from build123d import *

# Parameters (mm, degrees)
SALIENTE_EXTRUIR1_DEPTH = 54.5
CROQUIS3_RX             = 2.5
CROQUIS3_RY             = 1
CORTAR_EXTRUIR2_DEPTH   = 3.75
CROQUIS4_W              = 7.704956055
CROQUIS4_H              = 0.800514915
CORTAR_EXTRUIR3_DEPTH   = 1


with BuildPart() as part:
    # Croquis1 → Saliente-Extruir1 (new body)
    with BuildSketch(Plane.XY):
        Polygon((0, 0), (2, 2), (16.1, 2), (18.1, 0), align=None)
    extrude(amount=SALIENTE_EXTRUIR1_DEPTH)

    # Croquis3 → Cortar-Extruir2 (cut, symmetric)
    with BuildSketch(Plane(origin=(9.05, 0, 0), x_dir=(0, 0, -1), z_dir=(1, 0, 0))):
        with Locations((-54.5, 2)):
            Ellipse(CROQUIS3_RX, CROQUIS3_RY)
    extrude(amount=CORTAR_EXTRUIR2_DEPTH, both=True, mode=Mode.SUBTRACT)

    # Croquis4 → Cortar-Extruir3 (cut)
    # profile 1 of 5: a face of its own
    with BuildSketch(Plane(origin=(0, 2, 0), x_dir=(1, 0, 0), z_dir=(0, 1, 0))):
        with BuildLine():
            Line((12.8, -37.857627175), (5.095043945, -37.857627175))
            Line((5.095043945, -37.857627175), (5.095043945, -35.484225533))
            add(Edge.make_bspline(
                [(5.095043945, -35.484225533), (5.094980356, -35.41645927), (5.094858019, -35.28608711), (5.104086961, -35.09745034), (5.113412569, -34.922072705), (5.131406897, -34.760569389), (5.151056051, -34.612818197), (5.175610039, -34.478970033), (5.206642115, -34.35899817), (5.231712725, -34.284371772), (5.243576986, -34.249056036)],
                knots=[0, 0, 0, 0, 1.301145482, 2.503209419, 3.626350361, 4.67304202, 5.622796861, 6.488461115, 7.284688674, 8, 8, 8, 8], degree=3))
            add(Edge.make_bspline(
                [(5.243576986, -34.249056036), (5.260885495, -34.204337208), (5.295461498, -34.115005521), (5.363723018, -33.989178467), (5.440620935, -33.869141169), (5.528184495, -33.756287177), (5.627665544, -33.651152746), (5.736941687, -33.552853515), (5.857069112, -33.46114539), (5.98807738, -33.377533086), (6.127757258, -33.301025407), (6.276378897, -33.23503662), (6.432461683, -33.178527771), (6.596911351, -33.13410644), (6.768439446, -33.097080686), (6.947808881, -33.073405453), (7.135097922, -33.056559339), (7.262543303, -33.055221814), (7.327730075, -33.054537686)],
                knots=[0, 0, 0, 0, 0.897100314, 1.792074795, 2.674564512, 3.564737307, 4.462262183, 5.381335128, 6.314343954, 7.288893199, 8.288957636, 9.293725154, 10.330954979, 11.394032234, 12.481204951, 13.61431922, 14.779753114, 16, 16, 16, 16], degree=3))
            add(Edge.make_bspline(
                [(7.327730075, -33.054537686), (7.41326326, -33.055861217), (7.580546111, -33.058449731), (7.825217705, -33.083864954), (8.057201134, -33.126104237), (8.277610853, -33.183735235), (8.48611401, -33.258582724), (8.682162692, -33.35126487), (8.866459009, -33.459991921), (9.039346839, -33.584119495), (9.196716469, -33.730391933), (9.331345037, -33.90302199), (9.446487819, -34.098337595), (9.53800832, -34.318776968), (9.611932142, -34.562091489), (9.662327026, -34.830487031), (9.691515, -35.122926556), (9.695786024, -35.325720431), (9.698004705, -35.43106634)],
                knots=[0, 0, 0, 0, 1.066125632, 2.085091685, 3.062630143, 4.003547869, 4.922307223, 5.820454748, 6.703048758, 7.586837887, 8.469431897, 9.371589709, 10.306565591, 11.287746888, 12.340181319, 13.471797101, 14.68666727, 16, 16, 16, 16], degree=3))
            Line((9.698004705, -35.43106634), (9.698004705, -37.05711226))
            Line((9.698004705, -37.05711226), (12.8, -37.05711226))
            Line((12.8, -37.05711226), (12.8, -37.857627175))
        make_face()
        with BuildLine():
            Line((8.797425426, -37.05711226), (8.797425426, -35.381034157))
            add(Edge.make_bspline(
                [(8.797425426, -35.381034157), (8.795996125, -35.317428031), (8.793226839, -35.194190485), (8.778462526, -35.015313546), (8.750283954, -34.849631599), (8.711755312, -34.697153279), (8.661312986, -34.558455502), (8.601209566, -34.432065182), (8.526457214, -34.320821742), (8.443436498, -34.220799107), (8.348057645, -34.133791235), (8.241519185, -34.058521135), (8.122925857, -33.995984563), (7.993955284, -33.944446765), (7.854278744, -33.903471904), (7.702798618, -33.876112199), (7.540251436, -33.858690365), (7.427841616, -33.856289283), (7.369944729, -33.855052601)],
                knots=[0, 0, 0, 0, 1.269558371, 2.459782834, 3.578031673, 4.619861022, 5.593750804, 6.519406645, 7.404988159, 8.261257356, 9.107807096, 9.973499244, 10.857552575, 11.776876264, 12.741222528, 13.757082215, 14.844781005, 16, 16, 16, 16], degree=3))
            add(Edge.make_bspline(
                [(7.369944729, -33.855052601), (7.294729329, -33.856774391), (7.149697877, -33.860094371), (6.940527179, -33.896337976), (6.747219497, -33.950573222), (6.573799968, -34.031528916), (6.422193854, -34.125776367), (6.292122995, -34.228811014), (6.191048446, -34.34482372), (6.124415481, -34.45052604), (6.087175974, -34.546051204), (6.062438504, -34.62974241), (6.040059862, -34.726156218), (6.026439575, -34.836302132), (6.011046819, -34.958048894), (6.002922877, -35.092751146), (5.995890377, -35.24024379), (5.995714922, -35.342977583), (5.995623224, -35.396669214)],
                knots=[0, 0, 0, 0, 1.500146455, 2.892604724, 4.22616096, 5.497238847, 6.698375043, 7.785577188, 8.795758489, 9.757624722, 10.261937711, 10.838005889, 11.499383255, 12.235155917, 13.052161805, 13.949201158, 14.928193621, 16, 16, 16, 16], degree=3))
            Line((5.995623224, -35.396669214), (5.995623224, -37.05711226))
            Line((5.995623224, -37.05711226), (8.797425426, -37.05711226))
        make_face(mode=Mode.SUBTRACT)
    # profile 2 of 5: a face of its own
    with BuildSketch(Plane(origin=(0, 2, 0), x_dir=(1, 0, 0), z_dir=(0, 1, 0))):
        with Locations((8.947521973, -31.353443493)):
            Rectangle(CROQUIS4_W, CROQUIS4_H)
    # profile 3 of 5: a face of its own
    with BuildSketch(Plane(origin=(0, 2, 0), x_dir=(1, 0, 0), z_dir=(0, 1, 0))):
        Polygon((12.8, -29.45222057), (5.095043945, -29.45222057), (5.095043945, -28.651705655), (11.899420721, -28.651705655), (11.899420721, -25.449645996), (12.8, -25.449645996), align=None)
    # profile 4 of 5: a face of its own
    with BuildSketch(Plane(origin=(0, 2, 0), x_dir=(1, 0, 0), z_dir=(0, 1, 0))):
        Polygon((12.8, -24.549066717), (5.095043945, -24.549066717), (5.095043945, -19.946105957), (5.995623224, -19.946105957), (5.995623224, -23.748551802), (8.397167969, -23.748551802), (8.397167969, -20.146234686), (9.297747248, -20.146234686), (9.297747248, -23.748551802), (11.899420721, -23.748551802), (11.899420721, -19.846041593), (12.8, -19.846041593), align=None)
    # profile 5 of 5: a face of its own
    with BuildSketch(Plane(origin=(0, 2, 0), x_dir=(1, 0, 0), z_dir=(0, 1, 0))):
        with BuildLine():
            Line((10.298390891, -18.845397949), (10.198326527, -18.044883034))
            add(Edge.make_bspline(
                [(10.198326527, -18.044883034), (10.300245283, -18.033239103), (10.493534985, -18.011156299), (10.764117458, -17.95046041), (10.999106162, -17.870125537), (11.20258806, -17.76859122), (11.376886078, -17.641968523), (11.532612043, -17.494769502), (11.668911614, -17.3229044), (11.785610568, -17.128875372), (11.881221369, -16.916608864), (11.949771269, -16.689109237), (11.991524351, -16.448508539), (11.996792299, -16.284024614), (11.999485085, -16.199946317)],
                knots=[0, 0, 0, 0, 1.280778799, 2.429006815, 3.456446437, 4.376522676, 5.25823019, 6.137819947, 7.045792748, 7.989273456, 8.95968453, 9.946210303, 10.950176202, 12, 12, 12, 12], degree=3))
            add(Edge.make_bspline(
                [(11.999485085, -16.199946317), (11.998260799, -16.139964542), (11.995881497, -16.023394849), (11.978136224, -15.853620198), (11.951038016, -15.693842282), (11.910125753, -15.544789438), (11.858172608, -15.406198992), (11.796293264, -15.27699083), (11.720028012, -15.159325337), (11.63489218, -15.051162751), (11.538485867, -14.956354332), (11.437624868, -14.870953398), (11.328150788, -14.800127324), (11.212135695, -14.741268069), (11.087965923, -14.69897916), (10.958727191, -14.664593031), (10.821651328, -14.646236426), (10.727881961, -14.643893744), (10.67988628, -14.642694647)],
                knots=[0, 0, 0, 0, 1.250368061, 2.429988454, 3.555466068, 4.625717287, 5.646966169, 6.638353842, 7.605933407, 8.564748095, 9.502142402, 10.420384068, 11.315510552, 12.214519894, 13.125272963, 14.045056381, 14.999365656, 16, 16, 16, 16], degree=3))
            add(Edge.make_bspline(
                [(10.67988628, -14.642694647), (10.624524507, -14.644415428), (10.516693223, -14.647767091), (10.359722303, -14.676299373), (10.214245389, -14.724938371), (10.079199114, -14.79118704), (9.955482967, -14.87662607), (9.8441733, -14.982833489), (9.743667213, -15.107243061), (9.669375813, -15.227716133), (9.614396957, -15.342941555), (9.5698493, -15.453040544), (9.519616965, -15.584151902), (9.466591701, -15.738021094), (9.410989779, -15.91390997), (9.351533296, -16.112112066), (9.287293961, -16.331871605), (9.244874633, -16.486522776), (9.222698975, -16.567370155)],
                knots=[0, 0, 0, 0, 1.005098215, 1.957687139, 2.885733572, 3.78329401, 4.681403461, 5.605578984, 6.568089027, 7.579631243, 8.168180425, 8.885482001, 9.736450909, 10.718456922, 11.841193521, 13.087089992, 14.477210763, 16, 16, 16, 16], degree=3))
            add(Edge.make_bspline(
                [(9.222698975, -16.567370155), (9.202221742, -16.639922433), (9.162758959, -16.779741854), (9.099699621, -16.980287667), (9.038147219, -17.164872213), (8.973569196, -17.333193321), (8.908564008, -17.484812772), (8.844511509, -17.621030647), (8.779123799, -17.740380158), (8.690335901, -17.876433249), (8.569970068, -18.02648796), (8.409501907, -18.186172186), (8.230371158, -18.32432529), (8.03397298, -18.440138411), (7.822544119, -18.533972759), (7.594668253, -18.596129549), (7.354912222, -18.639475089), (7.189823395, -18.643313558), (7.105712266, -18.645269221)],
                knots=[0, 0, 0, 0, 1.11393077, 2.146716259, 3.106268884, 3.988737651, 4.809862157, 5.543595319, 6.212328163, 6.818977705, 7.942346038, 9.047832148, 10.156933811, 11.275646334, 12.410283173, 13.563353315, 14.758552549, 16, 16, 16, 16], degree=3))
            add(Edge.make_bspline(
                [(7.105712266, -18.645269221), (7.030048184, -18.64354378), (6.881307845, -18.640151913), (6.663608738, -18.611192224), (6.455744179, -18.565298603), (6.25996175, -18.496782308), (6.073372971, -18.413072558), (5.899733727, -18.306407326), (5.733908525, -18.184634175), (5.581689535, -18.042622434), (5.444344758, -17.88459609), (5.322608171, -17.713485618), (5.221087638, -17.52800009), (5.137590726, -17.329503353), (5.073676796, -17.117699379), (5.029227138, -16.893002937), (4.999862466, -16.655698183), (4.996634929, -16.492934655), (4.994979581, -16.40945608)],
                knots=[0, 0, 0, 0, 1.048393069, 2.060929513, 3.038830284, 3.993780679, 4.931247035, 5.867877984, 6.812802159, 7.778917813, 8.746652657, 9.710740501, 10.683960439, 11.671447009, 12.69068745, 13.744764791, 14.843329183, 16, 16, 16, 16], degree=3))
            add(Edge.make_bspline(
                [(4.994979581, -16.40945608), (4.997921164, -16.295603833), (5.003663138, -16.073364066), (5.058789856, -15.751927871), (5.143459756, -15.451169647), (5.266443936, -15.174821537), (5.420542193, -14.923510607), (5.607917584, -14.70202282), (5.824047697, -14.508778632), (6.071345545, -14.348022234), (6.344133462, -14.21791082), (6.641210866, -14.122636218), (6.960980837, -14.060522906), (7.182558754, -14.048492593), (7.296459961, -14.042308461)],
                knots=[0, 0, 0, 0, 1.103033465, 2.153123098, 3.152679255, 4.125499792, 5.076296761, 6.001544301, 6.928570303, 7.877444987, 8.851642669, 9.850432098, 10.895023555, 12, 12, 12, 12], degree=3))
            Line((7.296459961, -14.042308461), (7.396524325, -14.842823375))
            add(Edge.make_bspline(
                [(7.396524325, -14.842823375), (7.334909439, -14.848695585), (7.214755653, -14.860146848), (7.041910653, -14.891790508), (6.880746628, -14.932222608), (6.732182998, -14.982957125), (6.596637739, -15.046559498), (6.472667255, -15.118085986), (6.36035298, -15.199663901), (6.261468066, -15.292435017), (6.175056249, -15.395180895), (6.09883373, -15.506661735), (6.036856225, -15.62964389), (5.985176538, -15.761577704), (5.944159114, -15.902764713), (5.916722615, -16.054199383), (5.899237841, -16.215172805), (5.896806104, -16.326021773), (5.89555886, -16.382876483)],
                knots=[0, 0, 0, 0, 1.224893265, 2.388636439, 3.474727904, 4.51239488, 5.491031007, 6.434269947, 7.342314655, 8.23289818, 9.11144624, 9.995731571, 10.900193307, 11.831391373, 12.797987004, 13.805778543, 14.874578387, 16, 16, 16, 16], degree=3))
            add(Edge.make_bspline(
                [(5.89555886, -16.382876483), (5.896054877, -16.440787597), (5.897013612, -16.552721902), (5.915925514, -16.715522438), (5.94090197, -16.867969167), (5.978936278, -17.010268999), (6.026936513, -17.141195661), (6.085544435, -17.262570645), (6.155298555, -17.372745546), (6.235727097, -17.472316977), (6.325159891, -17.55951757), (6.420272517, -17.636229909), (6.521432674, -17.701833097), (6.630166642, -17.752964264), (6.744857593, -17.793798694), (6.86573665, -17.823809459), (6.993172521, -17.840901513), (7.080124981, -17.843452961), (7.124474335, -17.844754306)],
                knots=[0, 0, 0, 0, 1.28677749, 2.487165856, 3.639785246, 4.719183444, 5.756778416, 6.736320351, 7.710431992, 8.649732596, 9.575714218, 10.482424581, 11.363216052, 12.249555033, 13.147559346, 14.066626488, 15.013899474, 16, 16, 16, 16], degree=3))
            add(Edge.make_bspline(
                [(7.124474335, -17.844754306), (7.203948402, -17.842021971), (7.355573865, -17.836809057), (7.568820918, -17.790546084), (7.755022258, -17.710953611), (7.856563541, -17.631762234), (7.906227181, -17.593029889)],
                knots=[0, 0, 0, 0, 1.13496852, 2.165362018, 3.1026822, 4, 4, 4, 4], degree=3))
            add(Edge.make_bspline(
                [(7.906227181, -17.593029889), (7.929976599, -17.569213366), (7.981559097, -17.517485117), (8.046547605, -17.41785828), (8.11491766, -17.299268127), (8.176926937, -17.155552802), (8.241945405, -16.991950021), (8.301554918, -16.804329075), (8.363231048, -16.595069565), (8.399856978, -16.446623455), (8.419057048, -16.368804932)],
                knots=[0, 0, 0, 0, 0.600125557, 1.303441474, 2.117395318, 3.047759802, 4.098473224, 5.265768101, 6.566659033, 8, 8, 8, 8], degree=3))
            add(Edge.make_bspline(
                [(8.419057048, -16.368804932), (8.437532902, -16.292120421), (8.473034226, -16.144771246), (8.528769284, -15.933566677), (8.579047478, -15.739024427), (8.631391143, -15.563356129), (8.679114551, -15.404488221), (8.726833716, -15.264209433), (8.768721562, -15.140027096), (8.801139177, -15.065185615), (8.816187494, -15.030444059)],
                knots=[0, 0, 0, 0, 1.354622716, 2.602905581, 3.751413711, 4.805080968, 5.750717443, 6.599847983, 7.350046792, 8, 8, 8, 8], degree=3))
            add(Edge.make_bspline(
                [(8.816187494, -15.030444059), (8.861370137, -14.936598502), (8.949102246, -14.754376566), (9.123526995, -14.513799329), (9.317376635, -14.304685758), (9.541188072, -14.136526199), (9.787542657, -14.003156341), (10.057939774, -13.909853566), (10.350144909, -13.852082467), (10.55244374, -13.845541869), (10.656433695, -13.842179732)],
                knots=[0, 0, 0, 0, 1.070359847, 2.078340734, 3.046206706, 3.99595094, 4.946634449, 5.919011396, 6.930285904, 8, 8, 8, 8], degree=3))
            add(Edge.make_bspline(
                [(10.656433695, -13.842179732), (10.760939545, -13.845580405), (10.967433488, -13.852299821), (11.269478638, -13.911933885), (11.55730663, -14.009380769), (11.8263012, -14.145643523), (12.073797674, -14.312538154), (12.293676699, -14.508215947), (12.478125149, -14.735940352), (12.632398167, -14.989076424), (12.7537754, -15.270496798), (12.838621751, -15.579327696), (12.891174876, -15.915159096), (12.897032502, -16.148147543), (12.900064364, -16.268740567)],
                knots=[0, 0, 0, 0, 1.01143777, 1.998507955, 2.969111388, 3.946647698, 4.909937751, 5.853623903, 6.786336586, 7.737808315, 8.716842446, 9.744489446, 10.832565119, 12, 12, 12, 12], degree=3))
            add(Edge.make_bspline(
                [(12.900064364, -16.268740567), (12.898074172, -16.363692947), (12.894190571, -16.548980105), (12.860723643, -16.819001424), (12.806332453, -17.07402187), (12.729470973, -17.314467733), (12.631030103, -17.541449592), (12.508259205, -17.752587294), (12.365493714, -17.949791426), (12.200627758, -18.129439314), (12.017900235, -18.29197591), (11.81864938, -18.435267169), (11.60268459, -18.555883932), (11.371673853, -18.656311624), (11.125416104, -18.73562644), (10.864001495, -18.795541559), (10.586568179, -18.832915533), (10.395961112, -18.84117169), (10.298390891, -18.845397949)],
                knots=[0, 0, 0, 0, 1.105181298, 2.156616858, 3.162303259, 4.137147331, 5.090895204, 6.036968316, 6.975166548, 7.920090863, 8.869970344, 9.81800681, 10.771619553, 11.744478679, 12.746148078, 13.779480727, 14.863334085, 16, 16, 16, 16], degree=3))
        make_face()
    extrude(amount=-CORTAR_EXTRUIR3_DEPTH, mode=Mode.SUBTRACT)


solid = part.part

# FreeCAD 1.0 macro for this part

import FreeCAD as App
import Part
import Sketcher
from FreeCAD import Vector
Q = App.Units.Quantity

doc = App.newDocument("Part")
body = doc.addObject("PartDesign::Body", "Body")

# Sketch on XY plane
sketch1 = doc.addObject("Sketcher::SketchObject", "Sketch")
body.addObject(sketch1)
sketch1.AttachmentSupport = (doc.XY_Plane, [""])
sketch1.MapMode = "FlatFace"
sketch1.addGeometry([
    Part.LineSegment(Vector(2, 2, 0), Vector(0, 0, 0)),
    Part.LineSegment(Vector(0, 0, 0), Vector(18.1, 0, 0)),
    Part.LineSegment(Vector(18.1, 0, 0), Vector(16.1, 2, 0)),
    Part.LineSegment(Vector(16.1, 2, 0), Vector(2, 2, 0)),
], False)
sketch1.addConstraint([
    Sketcher.Constraint("Coincident", 0, 2, 1, 1),
    Sketcher.Constraint("Coincident", 1, 2, 2, 1),
    Sketcher.Constraint("Coincident", 2, 2, 3, 1),
    Sketcher.Constraint("Coincident", 3, 2, 0, 1),
    Sketcher.Constraint("Horizontal", 1),
    Sketcher.Constraint("Horizontal", 3),
    Sketcher.Constraint("Coincident", 0, 2, -1, 1),
    Sketcher.Constraint("Perpendicular", 0, 2),
    Sketcher.Constraint("Equal", 0, 2),
    Sketcher.Constraint("DistanceX", 1, 1, 1, 2, Q("18.1 mm")),
    Sketcher.Constraint("DistanceX", 3, 2, 3, 1, Q("14.1 mm")),
])
pad1 = doc.addObject("PartDesign::Pad", "Pad")
body.addObject(pad1)
pad1.Profile = sketch1
pad1.Length = 54.5

# Sketch on YZ plane
sketch2 = doc.addObject("Sketcher::SketchObject", "Sketch001")
body.addObject(sketch2)
sketch2.AttachmentSupport = (doc.YZ_Plane, [""])
sketch2.MapMode = "FlatFace"
sketch2.AttachmentOffset = App.Placement(Vector(0, 0, 9.05), App.Rotation())
sketch2.addGeometry(Part.Ellipse(Vector(2, 52, 0), Vector(3, 54.5, 0), Vector(2, 54.5, 0)), False)
sketch2.addConstraint(Sketcher.Constraint("Block", 0))
pocket1 = doc.addObject("PartDesign::Pocket", "Pocket")
body.addObject(pocket1)
pocket1.Profile = sketch2
pocket1.Length = 7.5
pocket1.Midplane = True

# Sketch on XZ plane
sketch3 = doc.addObject("Sketcher::SketchObject", "Sketch002")
body.addObject(sketch3)
sketch3.AttachmentSupport = (doc.XZ_Plane, [""])
sketch3.MapMode = "FlatFace"
sketch3.AttachmentOffset = App.Placement(Vector(0, 0, -2), App.Rotation())
sketch3.addGeometry([
    Part.LineSegment(Vector(5.095044, 37.857627, 0), Vector(12.8, 37.857627, 0)),  # 0
    Part.LineSegment(Vector(12.8, 37.857627, 0), Vector(12.8, 37.057112, 0)),  # 1
    Part.LineSegment(Vector(12.8, 37.057112, 0), Vector(9.698005, 37.057112, 0)),  # 2
    Part.LineSegment(Vector(9.698005, 37.057112, 0), Vector(9.698005, 35.431066, 0)),  # 3
    Part.BSplineCurve([Vector(7.32773, 33.054538, 0), Vector(7.413263, 33.055861, 0), Vector(7.580546, 33.05845, 0), Vector(7.825218, 33.083865, 0), Vector(8.057201, 33.126104, 0), Vector(8.277611, 33.183735, 0), Vector(8.486114, 33.258583, 0), Vector(8.682163, 33.351265, 0), Vector(8.866459, 33.459992, 0), Vector(9.039347, 33.584119, 0), Vector(9.196716, 33.730392, 0), Vector(9.331345, 33.903022, 0), Vector(9.446488, 34.098338, 0), Vector(9.538008, 34.318777, 0), Vector(9.611932, 34.562091, 0), Vector(9.662327, 34.830487, 0), Vector(9.691515, 35.122927, 0), Vector(9.695786, 35.32572, 0), Vector(9.698005, 35.431066, 0)], [4, 1, 1, 1, 1, 1, 1, 1, 1, 1, 1, 1, 1, 1, 1, 1, 4], [0, 1.066125632, 2.085091685, 3.062630143, 4.003547869, 4.922307223, 5.820454748, 6.703048758, 7.586837887, 8.469431897, 9.371589709, 10.306565591, 11.287746888, 12.340181319, 13.471797101, 14.68666727, 16], False, 3, [1, 1, 1, 1, 1, 1, 1, 1, 1, 1, 1, 1, 1, 1, 1, 1, 1, 1, 1], False),  # 4
    Part.BSplineCurve([Vector(5.243577, 34.249056, 0), Vector(5.260885, 34.204337, 0), Vector(5.295461, 34.115006, 0), Vector(5.363723, 33.989178, 0), Vector(5.440621, 33.869141, 0), Vector(5.528184, 33.756287, 0), Vector(5.627666, 33.651153, 0), Vector(5.736942, 33.552854, 0), Vector(5.857069, 33.461145, 0), Vector(5.988077, 33.377533, 0), Vector(6.127757, 33.301025, 0), Vector(6.276379, 33.235037, 0), Vector(6.432462, 33.178528, 0), Vector(6.596911, 33.134106, 0), Vector(6.768439, 33.097081, 0), Vector(6.947809, 33.073405, 0), Vector(7.135098, 33.056559, 0), Vector(7.262543, 33.055222, 0), Vector(7.32773, 33.054538, 0)], [4, 1, 1, 1, 1, 1, 1, 1, 1, 1, 1, 1, 1, 1, 1, 1, 4], [0, 0.897100314, 1.792074795, 2.674564512, 3.564737307, 4.462262183, 5.381335128, 6.314343954, 7.288893199, 8.288957636, 9.293725154, 10.330954979, 11.394032234, 12.481204951, 13.61431922, 14.779753114, 16], False, 3, [1, 1, 1, 1, 1, 1, 1, 1, 1, 1, 1, 1, 1, 1, 1, 1, 1, 1, 1], False),  # 5
    Part.BSplineCurve([Vector(5.095044, 35.484226, 0), Vector(5.09498, 35.416459, 0), Vector(5.094858, 35.286087, 0), Vector(5.104087, 35.09745, 0), Vector(5.113413, 34.922073, 0), Vector(5.131407, 34.760569, 0), Vector(5.151056, 34.612818, 0), Vector(5.17561, 34.47897, 0), Vector(5.206642, 34.358998, 0), Vector(5.231713, 34.284372, 0), Vector(5.243577, 34.249056, 0)], [4, 1, 1, 1, 1, 1, 1, 1, 4], [0, 1.301145482, 2.503209419, 3.626350361, 4.67304202, 5.622796861, 6.488461115, 7.284688674, 8], False, 3, [1, 1, 1, 1, 1, 1, 1, 1, 1, 1, 1], False),  # 6
    Part.LineSegment(Vector(5.095044, 35.484226, 0), Vector(5.095044, 37.857627, 0)),  # 7
    Part.LineSegment(Vector(8.797425, 37.057112, 0), Vector(5.995623, 37.057112, 0)),  # 8
    Part.LineSegment(Vector(5.995623, 37.057112, 0), Vector(5.995623, 35.396669, 0)),  # 9
    Part.BSplineCurve([Vector(7.369945, 33.855053, 0), Vector(7.294729, 33.856774, 0), Vector(7.149698, 33.860094, 0), Vector(6.940527, 33.896338, 0), Vector(6.747219, 33.950573, 0), Vector(6.5738, 34.031529, 0), Vector(6.422194, 34.125776, 0), Vector(6.292123, 34.228811, 0), Vector(6.191048, 34.344824, 0), Vector(6.124415, 34.450526, 0), Vector(6.087176, 34.546051, 0), Vector(6.062439, 34.629742, 0), Vector(6.04006, 34.726156, 0), Vector(6.02644, 34.836302, 0), Vector(6.011047, 34.958049, 0), Vector(6.002923, 35.092751, 0), Vector(5.99589, 35.240244, 0), Vector(5.995715, 35.342978, 0), Vector(5.995623, 35.396669, 0)], [4, 1, 1, 1, 1, 1, 1, 1, 1, 1, 1, 1, 1, 1, 1, 1, 4], [0, 1.500146455, 2.892604724, 4.22616096, 5.497238847, 6.698375043, 7.785577188, 8.795758489, 9.757624722, 10.261937711, 10.838005889, 11.499383255, 12.235155917, 13.052161805, 13.949201158, 14.928193621, 16], False, 3, [1, 1, 1, 1, 1, 1, 1, 1, 1, 1, 1, 1, 1, 1, 1, 1, 1, 1, 1], False),  # 10
    Part.BSplineCurve([Vector(8.797425, 35.381034, 0), Vector(8.795996, 35.317428, 0), Vector(8.793227, 35.19419, 0), Vector(8.778463, 35.015314, 0), Vector(8.750284, 34.849632, 0), Vector(8.711755, 34.697153, 0), Vector(8.661313, 34.558456, 0), Vector(8.60121, 34.432065, 0), Vector(8.526457, 34.320822, 0), Vector(8.443436, 34.220799, 0), Vector(8.348058, 34.133791, 0), Vector(8.241519, 34.058521, 0), Vector(8.122926, 33.995985, 0), Vector(7.993955, 33.944447, 0), Vector(7.854279, 33.903472, 0), Vector(7.702799, 33.876112, 0), Vector(7.540251, 33.85869, 0), Vector(7.427842, 33.856289, 0), Vector(7.369945, 33.855053, 0)], [4, 1, 1, 1, 1, 1, 1, 1, 1, 1, 1, 1, 1, 1, 1, 1, 4], [0, 1.269558371, 2.459782834, 3.578031673, 4.619861022, 5.593750804, 6.519406645, 7.404988159, 8.261257356, 9.107807096, 9.973499244, 10.857552575, 11.776876264, 12.741222528, 13.757082215, 14.844781005, 16], False, 3, [1, 1, 1, 1, 1, 1, 1, 1, 1, 1, 1, 1, 1, 1, 1, 1, 1, 1, 1], False),  # 11
    Part.LineSegment(Vector(8.797425, 35.381034, 0), Vector(8.797425, 37.057112, 0)),  # 12
    Part.LineSegment(Vector(5.095044, 30.953186, 0), Vector(5.095044, 31.753701, 0)),  # 13
    Part.LineSegment(Vector(5.095044, 31.753701, 0), Vector(12.8, 31.753701, 0)),  # 14
    Part.LineSegment(Vector(12.8, 31.753701, 0), Vector(12.8, 30.953186, 0)),  # 15
    Part.LineSegment(Vector(12.8, 30.953186, 0), Vector(5.095044, 30.953186, 0)),  # 16
    Part.LineSegment(Vector(5.095044, 29.452221, 0), Vector(12.8, 29.452221, 0)),  # 17
    Part.LineSegment(Vector(12.8, 29.452221, 0), Vector(12.8, 25.449646, 0)),  # 18
    Part.LineSegment(Vector(12.8, 25.449646, 0), Vector(11.899421, 25.449646, 0)),  # 19
    Part.LineSegment(Vector(11.899421, 25.449646, 0), Vector(11.899421, 28.651706, 0)),  # 20
    Part.LineSegment(Vector(11.899421, 28.651706, 0), Vector(5.095044, 28.651706, 0)),  # 21
    Part.LineSegment(Vector(5.095044, 28.651706, 0), Vector(5.095044, 29.452221, 0)),  # 22
    Part.LineSegment(Vector(5.095044, 24.549067, 0), Vector(12.8, 24.549067, 0)),  # 23
    Part.LineSegment(Vector(12.8, 24.549067, 0), Vector(12.8, 19.846042, 0)),  # 24
    Part.LineSegment(Vector(12.8, 19.846042, 0), Vector(11.899421, 19.846042, 0)),  # 25
    Part.LineSegment(Vector(11.899421, 19.846042, 0), Vector(11.899421, 23.748552, 0)),  # 26
    Part.LineSegment(Vector(11.899421, 23.748552, 0), Vector(9.297747, 23.748552, 0)),  # 27
    Part.LineSegment(Vector(9.297747, 23.748552, 0), Vector(9.297747, 20.146235, 0)),  # 28
    Part.LineSegment(Vector(9.297747, 20.146235, 0), Vector(8.397168, 20.146235, 0)),  # 29
    Part.LineSegment(Vector(8.397168, 20.146235, 0), Vector(8.397168, 23.748552, 0)),  # 30
    Part.LineSegment(Vector(8.397168, 23.748552, 0), Vector(5.995623, 23.748552, 0)),  # 31
    Part.LineSegment(Vector(5.995623, 23.748552, 0), Vector(5.995623, 19.946106, 0)),  # 32
    Part.LineSegment(Vector(5.995623, 19.946106, 0), Vector(5.095044, 19.946106, 0)),  # 33
    Part.LineSegment(Vector(5.095044, 19.946106, 0), Vector(5.095044, 24.549067, 0)),  # 34
    Part.LineSegment(Vector(10.198327, 18.044883, 0), Vector(10.298391, 18.845398, 0)),  # 35
    Part.BSplineCurve([Vector(12.900064, 16.268741, 0), Vector(12.898074, 16.363693, 0), Vector(12.894191, 16.54898, 0), Vector(12.860724, 16.819001, 0), Vector(12.806332, 17.074022, 0), Vector(12.729471, 17.314468, 0), Vector(12.63103, 17.54145, 0), Vector(12.508259, 17.752587, 0), Vector(12.365494, 17.949791, 0), Vector(12.200628, 18.129439, 0), Vector(12.0179, 18.291976, 0), Vector(11.818649, 18.435267, 0), Vector(11.602685, 18.555884, 0), Vector(11.371674, 18.656312, 0), Vector(11.125416, 18.735626, 0), Vector(10.864001, 18.795542, 0), Vector(10.586568, 18.832916, 0), Vector(10.395961, 18.841172, 0), Vector(10.298391, 18.845398, 0)], [4, 1, 1, 1, 1, 1, 1, 1, 1, 1, 1, 1, 1, 1, 1, 1, 4], [0, 1.105181298, 2.156616858, 3.162303259, 4.137147331, 5.090895204, 6.036968316, 6.975166548, 7.920090863, 8.869970344, 9.81800681, 10.771619553, 11.744478679, 12.746148078, 13.779480727, 14.863334085, 16], False, 3, [1, 1, 1, 1, 1, 1, 1, 1, 1, 1, 1, 1, 1, 1, 1, 1, 1, 1, 1], False),  # 36
    Part.BSplineCurve([Vector(10.656434, 13.84218, 0), Vector(10.76094, 13.84558, 0), Vector(10.967433, 13.8523, 0), Vector(11.269479, 13.911934, 0), Vector(11.557307, 14.009381, 0), Vector(11.826301, 14.145644, 0), Vector(12.073798, 14.312538, 0), Vector(12.293677, 14.508216, 0), Vector(12.478125, 14.73594, 0), Vector(12.632398, 14.989076, 0), Vector(12.753775, 15.270497, 0), Vector(12.838622, 15.579328, 0), Vector(12.891175, 15.915159, 0), Vector(12.897033, 16.148148, 0), Vector(12.900064, 16.268741, 0)], [4, 1, 1, 1, 1, 1, 1, 1, 1, 1, 1, 1, 4], [0, 1.01143777, 1.998507955, 2.969111388, 3.946647698, 4.909937751, 5.853623903, 6.786336586, 7.737808315, 8.716842446, 9.744489446, 10.832565119, 12], False, 3, [1, 1, 1, 1, 1, 1, 1, 1, 1, 1, 1, 1, 1, 1, 1], False),  # 37
    Part.BSplineCurve([Vector(8.816187, 15.030444, 0), Vector(8.86137, 14.936599, 0), Vector(8.949102, 14.754377, 0), Vector(9.123527, 14.513799, 0), Vector(9.317377, 14.304686, 0), Vector(9.541188, 14.136526, 0), Vector(9.787543, 14.003156, 0), Vector(10.05794, 13.909854, 0), Vector(10.350145, 13.852082, 0), Vector(10.552444, 13.845542, 0), Vector(10.656434, 13.84218, 0)], [4, 1, 1, 1, 1, 1, 1, 1, 4], [0, 1.070359847, 2.078340734, 3.046206706, 3.99595094, 4.946634449, 5.919011396, 6.930285904, 8], False, 3, [1, 1, 1, 1, 1, 1, 1, 1, 1, 1, 1], False),  # 38
    Part.BSplineCurve([Vector(8.419057, 16.368805, 0), Vector(8.437533, 16.29212, 0), Vector(8.473034, 16.144771, 0), Vector(8.528769, 15.933567, 0), Vector(8.579047, 15.739024, 0), Vector(8.631391, 15.563356, 0), Vector(8.679115, 15.404488, 0), Vector(8.726834, 15.264209, 0), Vector(8.768722, 15.140027, 0), Vector(8.801139, 15.065186, 0), Vector(8.816187, 15.030444, 0)], [4, 1, 1, 1, 1, 1, 1, 1, 4], [0, 1.354622716, 2.602905581, 3.751413711, 4.805080968, 5.750717443, 6.599847983, 7.350046792, 8], False, 3, [1, 1, 1, 1, 1, 1, 1, 1, 1, 1, 1], False),  # 39
    Part.BSplineCurve([Vector(7.906227, 17.59303, 0), Vector(7.929977, 17.569213, 0), Vector(7.981559, 17.517485, 0), Vector(8.046548, 17.417858, 0), Vector(8.114918, 17.299268, 0), Vector(8.176927, 17.155553, 0), Vector(8.241945, 16.99195, 0), Vector(8.301555, 16.804329, 0), Vector(8.363231, 16.59507, 0), Vector(8.399857, 16.446623, 0), Vector(8.419057, 16.368805, 0)], [4, 1, 1, 1, 1, 1, 1, 1, 4], [0, 0.600125557, 1.303441474, 2.117395318, 3.047759802, 4.098473224, 5.265768101, 6.566659033, 8], False, 3, [1, 1, 1, 1, 1, 1, 1, 1, 1, 1, 1], False),  # 40
    Part.BSplineCurve([Vector(7.124474, 17.844754, 0), Vector(7.203948, 17.842022, 0), Vector(7.355574, 17.836809, 0), Vector(7.568821, 17.790546, 0), Vector(7.755022, 17.710954, 0), Vector(7.856564, 17.631762, 0), Vector(7.906227, 17.59303, 0)], [4, 1, 1, 1, 4], [0, 1.13496852, 2.165362018, 3.1026822, 4], False, 3, [1, 1, 1, 1, 1, 1, 1], False),  # 41
    Part.BSplineCurve([Vector(5.895559, 16.382876, 0), Vector(5.896055, 16.440788, 0), Vector(5.897014, 16.552722, 0), Vector(5.915926, 16.715522, 0), Vector(5.940902, 16.867969, 0), Vector(5.978936, 17.010269, 0), Vector(6.026937, 17.141196, 0), Vector(6.085544, 17.262571, 0), Vector(6.155299, 17.372746, 0), Vector(6.235727, 17.472317, 0), Vector(6.32516, 17.559518, 0), Vector(6.420273, 17.63623, 0), Vector(6.521433, 17.701833, 0), Vector(6.630167, 17.752964, 0), Vector(6.744858, 17.793799, 0), Vector(6.865737, 17.823809, 0), Vector(6.993173, 17.840902, 0), Vector(7.080125, 17.843453, 0), Vector(7.124474, 17.844754, 0)], [4, 1, 1, 1, 1, 1, 1, 1, 1, 1, 1, 1, 1, 1, 1, 1, 4], [0, 1.28677749, 2.487165856, 3.639785246, 4.719183444, 5.756778416, 6.736320351, 7.710431992, 8.649732596, 9.575714218, 10.482424581, 11.363216052, 12.249555033, 13.147559346, 14.066626488, 15.013899474, 16], False, 3, [1, 1, 1, 1, 1, 1, 1, 1, 1, 1, 1, 1, 1, 1, 1, 1, 1, 1, 1], False),  # 42
    Part.BSplineCurve([Vector(7.396524, 14.842823, 0), Vector(7.334909, 14.848696, 0), Vector(7.214756, 14.860147, 0), Vector(7.041911, 14.891791, 0), Vector(6.880747, 14.932223, 0), Vector(6.732183, 14.982957, 0), Vector(6.596638, 15.046559, 0), Vector(6.472667, 15.118086, 0), Vector(6.360353, 15.199664, 0), Vector(6.261468, 15.292435, 0), Vector(6.175056, 15.395181, 0), Vector(6.098834, 15.506662, 0), Vector(6.036856, 15.629644, 0), Vector(5.985177, 15.761578, 0), Vector(5.944159, 15.902765, 0), Vector(5.916723, 16.054199, 0), Vector(5.899238, 16.215173, 0), Vector(5.896806, 16.326022, 0), Vector(5.895559, 16.382876, 0)], [4, 1, 1, 1, 1, 1, 1, 1, 1, 1, 1, 1, 1, 1, 1, 1, 4], [0, 1.224893265, 2.388636439, 3.474727904, 4.51239488, 5.491031007, 6.434269947, 7.342314655, 8.23289818, 9.11144624, 9.995731571, 10.900193307, 11.831391373, 12.797987004, 13.805778543, 14.874578387, 16], False, 3, [1, 1, 1, 1, 1, 1, 1, 1, 1, 1, 1, 1, 1, 1, 1, 1, 1, 1, 1], False),  # 43
    Part.LineSegment(Vector(7.396524, 14.842823, 0), Vector(7.29646, 14.042308, 0)),  # 44
    Part.BSplineCurve([Vector(4.99498, 16.409456, 0), Vector(4.997921, 16.295604, 0), Vector(5.003663, 16.073364, 0), Vector(5.05879, 15.751928, 0), Vector(5.14346, 15.45117, 0), Vector(5.266444, 15.174822, 0), Vector(5.420542, 14.923511, 0), Vector(5.607918, 14.702023, 0), Vector(5.824048, 14.508779, 0), Vector(6.071346, 14.348022, 0), Vector(6.344133, 14.217911, 0), Vector(6.641211, 14.122636, 0), Vector(6.960981, 14.060523, 0), Vector(7.182559, 14.048493, 0), Vector(7.29646, 14.042308, 0)], [4, 1, 1, 1, 1, 1, 1, 1, 1, 1, 1, 1, 4], [0, 1.103033465, 2.153123098, 3.152679255, 4.125499792, 5.076296761, 6.001544301, 6.928570303, 7.877444987, 8.851642669, 9.850432098, 10.895023555, 12], False, 3, [1, 1, 1, 1, 1, 1, 1, 1, 1, 1, 1, 1, 1, 1, 1], False),  # 45
    Part.BSplineCurve([Vector(7.105712, 18.645269, 0), Vector(7.030048, 18.643544, 0), Vector(6.881308, 18.640152, 0), Vector(6.663609, 18.611192, 0), Vector(6.455744, 18.565299, 0), Vector(6.259962, 18.496782, 0), Vector(6.073373, 18.413073, 0), Vector(5.899734, 18.306407, 0), Vector(5.733909, 18.184634, 0), Vector(5.58169, 18.042622, 0), Vector(5.444345, 17.884596, 0), Vector(5.322608, 17.713486, 0), Vector(5.221088, 17.528, 0), Vector(5.137591, 17.329503, 0), Vector(5.073677, 17.117699, 0), Vector(5.029227, 16.893003, 0), Vector(4.999862, 16.655698, 0), Vector(4.996635, 16.492935, 0), Vector(4.99498, 16.409456, 0)], [4, 1, 1, 1, 1, 1, 1, 1, 1, 1, 1, 1, 1, 1, 1, 1, 4], [0, 1.048393069, 2.060929513, 3.038830284, 3.993780679, 4.931247035, 5.867877984, 6.812802159, 7.778917813, 8.746652657, 9.710740501, 10.683960439, 11.671447009, 12.69068745, 13.744764791, 14.843329183, 16], False, 3, [1, 1, 1, 1, 1, 1, 1, 1, 1, 1, 1, 1, 1, 1, 1, 1, 1, 1, 1], False),  # 46
    Part.BSplineCurve([Vector(9.222699, 16.56737, 0), Vector(9.202222, 16.639922, 0), Vector(9.162759, 16.779742, 0), Vector(9.0997, 16.980288, 0), Vector(9.038147, 17.164872, 0), Vector(8.973569, 17.333193, 0), Vector(8.908564, 17.484813, 0), Vector(8.844512, 17.621031, 0), Vector(8.779124, 17.74038, 0), Vector(8.690336, 17.876433, 0), Vector(8.56997, 18.026488, 0), Vector(8.409502, 18.186172, 0), Vector(8.230371, 18.324325, 0), Vector(8.033973, 18.440138, 0), Vector(7.822544, 18.533973, 0), Vector(7.594668, 18.59613, 0), Vector(7.354912, 18.639475, 0), Vector(7.189823, 18.643314, 0), Vector(7.105712, 18.645269, 0)], [4, 1, 1, 1, 1, 1, 1, 1, 1, 1, 1, 1, 1, 1, 1, 1, 4], [0, 1.11393077, 2.146716259, 3.106268884, 3.988737651, 4.809862157, 5.543595319, 6.212328163, 6.818977705, 7.942346038, 9.047832148, 10.156933811, 11.275646334, 12.410283173, 13.563353315, 14.758552549, 16], False, 3, [1, 1, 1, 1, 1, 1, 1, 1, 1, 1, 1, 1, 1, 1, 1, 1, 1, 1, 1], False),  # 47
    Part.BSplineCurve([Vector(10.679886, 14.642695, 0), Vector(10.624525, 14.644415, 0), Vector(10.516693, 14.647767, 0), Vector(10.359722, 14.676299, 0), Vector(10.214245, 14.724938, 0), Vector(10.079199, 14.791187, 0), Vector(9.955483, 14.876626, 0), Vector(9.844173, 14.982833, 0), Vector(9.743667, 15.107243, 0), Vector(9.669376, 15.227716, 0), Vector(9.614397, 15.342942, 0), Vector(9.569849, 15.453041, 0), Vector(9.519617, 15.584152, 0), Vector(9.466592, 15.738021, 0), Vector(9.41099, 15.91391, 0), Vector(9.351533, 16.112112, 0), Vector(9.287294, 16.331872, 0), Vector(9.244875, 16.486523, 0), Vector(9.222699, 16.56737, 0)], [4, 1, 1, 1, 1, 1, 1, 1, 1, 1, 1, 1, 1, 1, 1, 1, 4], [0, 1.005098215, 1.957687139, 2.885733572, 3.78329401, 4.681403461, 5.605578984, 6.568089027, 7.579631243, 8.168180425, 8.885482001, 9.736450909, 10.718456922, 11.841193521, 13.087089992, 14.477210763, 16], False, 3, [1, 1, 1, 1, 1, 1, 1, 1, 1, 1, 1, 1, 1, 1, 1, 1, 1, 1, 1], False),  # 48
    Part.BSplineCurve([Vector(11.999485, 16.199946, 0), Vector(11.998261, 16.139965, 0), Vector(11.995881, 16.023395, 0), Vector(11.978136, 15.85362, 0), Vector(11.951038, 15.693842, 0), Vector(11.910126, 15.544789, 0), Vector(11.858173, 15.406199, 0), Vector(11.796293, 15.276991, 0), Vector(11.720028, 15.159325, 0), Vector(11.634892, 15.051163, 0), Vector(11.538486, 14.956354, 0), Vector(11.437625, 14.870953, 0), Vector(11.328151, 14.800127, 0), Vector(11.212136, 14.741268, 0), Vector(11.087966, 14.698979, 0), Vector(10.958727, 14.664593, 0), Vector(10.821651, 14.646236, 0), Vector(10.727882, 14.643894, 0), Vector(10.679886, 14.642695, 0)], [4, 1, 1, 1, 1, 1, 1, 1, 1, 1, 1, 1, 1, 1, 1, 1, 4], [0, 1.250368061, 2.429988454, 3.555466068, 4.625717287, 5.646966169, 6.638353842, 7.605933407, 8.564748095, 9.502142402, 10.420384068, 11.315510552, 12.214519894, 13.125272963, 14.045056381, 14.999365656, 16], False, 3, [1, 1, 1, 1, 1, 1, 1, 1, 1, 1, 1, 1, 1, 1, 1, 1, 1, 1, 1], False),  # 49
    Part.BSplineCurve([Vector(10.198327, 18.044883, 0), Vector(10.300245, 18.033239, 0), Vector(10.493535, 18.011156, 0), Vector(10.764117, 17.95046, 0), Vector(10.999106, 17.870126, 0), Vector(11.202588, 17.768591, 0), Vector(11.376886, 17.641969, 0), Vector(11.532612, 17.49477, 0), Vector(11.668912, 17.322904, 0), Vector(11.785611, 17.128875, 0), Vector(11.881221, 16.916609, 0), Vector(11.949771, 16.689109, 0), Vector(11.991524, 16.448509, 0), Vector(11.996792, 16.284025, 0), Vector(11.999485, 16.199946, 0)], [4, 1, 1, 1, 1, 1, 1, 1, 1, 1, 1, 1, 4], [0, 1.280778799, 2.429006815, 3.456446437, 4.376522676, 5.25823019, 6.137819947, 7.045792748, 7.989273456, 8.95968453, 9.946210303, 10.950176202, 12], False, 3, [1, 1, 1, 1, 1, 1, 1, 1, 1, 1, 1, 1, 1, 1, 1], False),  # 50
], False)
sketch3.addConstraint([
    Sketcher.Constraint("Block", 4),
    Sketcher.Constraint("Block", 5),
    Sketcher.Constraint("Block", 6),
    Sketcher.Constraint("Block", 10),
    Sketcher.Constraint("Block", 11),
    Sketcher.Constraint("Block", 36),
    Sketcher.Constraint("Block", 37),
    Sketcher.Constraint("Block", 38),
    Sketcher.Constraint("Block", 39),
    Sketcher.Constraint("Block", 40),
    Sketcher.Constraint("Block", 41),
    Sketcher.Constraint("Block", 42),
    Sketcher.Constraint("Block", 43),
    Sketcher.Constraint("Block", 45),
    Sketcher.Constraint("Block", 46),
    Sketcher.Constraint("Block", 47),
    Sketcher.Constraint("Block", 48),
    Sketcher.Constraint("Block", 49),
    Sketcher.Constraint("Block", 50),
    Sketcher.Constraint("Coincident", 0, 2, 1, 1),
    Sketcher.Constraint("Coincident", 1, 2, 2, 1),
    Sketcher.Constraint("Coincident", 2, 2, 3, 1),
    Sketcher.Constraint("Coincident", 3, 2, 4, 2),
    Sketcher.Constraint("Coincident", 6, 1, 7, 1),
    Sketcher.Constraint("Coincident", 7, 2, 0, 1),
    Sketcher.Constraint("Coincident", 8, 2, 9, 1),
    Sketcher.Constraint("Coincident", 9, 2, 10, 2),
    Sketcher.Constraint("Coincident", 11, 1, 12, 1),
    Sketcher.Constraint("Coincident", 12, 2, 8, 1),
    Sketcher.Constraint("Coincident", 13, 2, 14, 1),
    Sketcher.Constraint("Coincident", 14, 2, 15, 1),
    Sketcher.Constraint("Coincident", 15, 2, 16, 1),
    Sketcher.Constraint("Coincident", 16, 2, 13, 1),
    Sketcher.Constraint("Coincident", 17, 2, 18, 1),
    Sketcher.Constraint("Coincident", 18, 2, 19, 1),
    Sketcher.Constraint("Coincident", 19, 2, 20, 1),
    Sketcher.Constraint("Coincident", 20, 2, 21, 1),
    Sketcher.Constraint("Coincident", 21, 2, 22, 1),
    Sketcher.Constraint("Coincident", 22, 2, 17, 1),
    Sketcher.Constraint("Coincident", 23, 2, 24, 1),
    Sketcher.Constraint("Coincident", 24, 2, 25, 1),
    Sketcher.Constraint("Coincident", 25, 2, 26, 1),
    Sketcher.Constraint("Coincident", 26, 2, 27, 1),
    Sketcher.Constraint("Coincident", 27, 2, 28, 1),
    Sketcher.Constraint("Coincident", 28, 2, 29, 1),
    Sketcher.Constraint("Coincident", 29, 2, 30, 1),
    Sketcher.Constraint("Coincident", 30, 2, 31, 1),
    Sketcher.Constraint("Coincident", 31, 2, 32, 1),
    Sketcher.Constraint("Coincident", 32, 2, 33, 1),
    Sketcher.Constraint("Coincident", 33, 2, 34, 1),
    Sketcher.Constraint("Coincident", 34, 2, 23, 1),
    Sketcher.Constraint("Coincident", 35, 2, 36, 2),
    Sketcher.Constraint("Coincident", 43, 1, 44, 1),
    Sketcher.Constraint("Coincident", 44, 2, 45, 2),
    Sketcher.Constraint("Coincident", 50, 1, 35, 1),
    Sketcher.Constraint("Horizontal", 0),
    Sketcher.Constraint("Vertical", 1),
    Sketcher.Constraint("Horizontal", 2),
    Sketcher.Constraint("Vertical", 3),
    Sketcher.Constraint("Vertical", 7),
    Sketcher.Constraint("Horizontal", 8),
    Sketcher.Constraint("Vertical", 9),
    Sketcher.Constraint("Vertical", 12),
    Sketcher.Constraint("Vertical", 13),
    Sketcher.Constraint("Horizontal", 14),
    Sketcher.Constraint("Vertical", 15),
    Sketcher.Constraint("Horizontal", 16),
    Sketcher.Constraint("Horizontal", 17),
    Sketcher.Constraint("Vertical", 18),
    Sketcher.Constraint("Horizontal", 19),
    Sketcher.Constraint("Vertical", 20),
    Sketcher.Constraint("Horizontal", 21),
    Sketcher.Constraint("Vertical", 22),
    Sketcher.Constraint("Horizontal", 23),
    Sketcher.Constraint("Vertical", 24),
    Sketcher.Constraint("Horizontal", 25),
    Sketcher.Constraint("Vertical", 26),
    Sketcher.Constraint("Horizontal", 27),
    Sketcher.Constraint("Vertical", 28),
    Sketcher.Constraint("Horizontal", 29),
    Sketcher.Constraint("Vertical", 30),
    Sketcher.Constraint("Horizontal", 31),
    Sketcher.Constraint("Vertical", 32),
    Sketcher.Constraint("Horizontal", 33),
    Sketcher.Constraint("Vertical", 34),
    Sketcher.Constraint("Horizontal", 2, 2, 8, 2),
    Sketcher.Constraint("Horizontal", 27, 2, 30, 2),
    Sketcher.Constraint("Vertical", 7, 2, 13, 2),
    Sketcher.Constraint("Vertical", 1, 2, 14, 2),
    Sketcher.Constraint("Vertical", 15, 2, 17, 2),
    Sketcher.Constraint("Vertical", 16, 2, 21, 2),
    Sketcher.Constraint("Vertical", 18, 2, 23, 2),
    Sketcher.Constraint("Vertical", 20, 2, 25, 2),
    Sketcher.Constraint("Vertical", 9, 2, 31, 2),
    Sketcher.Constraint("Vertical", 22, 2, 33, 2),
    Sketcher.Constraint("Equal", 25, 29),
    Sketcher.Constraint("Equal", 29, 33),
    Sketcher.Constraint("Equal", 1, 13),
    Sketcher.Constraint("Equal", 15, 22),
    Sketcher.Constraint("DistanceX", -1, 1, 0, 2, Q("12.8 mm")),
    Sketcher.Constraint("DistanceY", 7, 1, 7, 2, Q("2.373402 mm")),
    Sketcher.Constraint("DistanceY", 12, 1, 12, 2, Q("1.676078 mm")),
    Sketcher.Constraint("DistanceY", 20, 1, 20, 2, Q("3.20206 mm")),
    Sketcher.Constraint("DistanceY", 26, 1, 26, 2, Q("3.90251 mm")),
    Sketcher.Constraint("DistanceY", 34, 1, 34, 2, Q("4.602961 mm")),
    Sketcher.Constraint("DistanceY", -1, 1, 13, 2, Q("31.753701 mm")),
    Sketcher.Constraint("DistanceX", 27, 2, 27, 1, Q("2.601673 mm")),
    Sketcher.Constraint("DistanceY", 24, 2, 24, 1, Q("4.703025 mm")),
    Sketcher.Constraint("DistanceY", 28, 2, 28, 1, Q("3.602317 mm")),
    Sketcher.Constraint("DistanceY", -1, 1, 17, 2, Q("29.452221 mm")),
    Sketcher.Constraint("DistanceY", -1, 1, 24, 2, Q("19.846042 mm")),
])
pocket2 = doc.addObject("PartDesign::Pocket", "Pocket001")
body.addObject(pocket2)
pocket2.Profile = sketch3
pocket2.Length = 1
pocket2.Reversed = True

doc.recompute()
